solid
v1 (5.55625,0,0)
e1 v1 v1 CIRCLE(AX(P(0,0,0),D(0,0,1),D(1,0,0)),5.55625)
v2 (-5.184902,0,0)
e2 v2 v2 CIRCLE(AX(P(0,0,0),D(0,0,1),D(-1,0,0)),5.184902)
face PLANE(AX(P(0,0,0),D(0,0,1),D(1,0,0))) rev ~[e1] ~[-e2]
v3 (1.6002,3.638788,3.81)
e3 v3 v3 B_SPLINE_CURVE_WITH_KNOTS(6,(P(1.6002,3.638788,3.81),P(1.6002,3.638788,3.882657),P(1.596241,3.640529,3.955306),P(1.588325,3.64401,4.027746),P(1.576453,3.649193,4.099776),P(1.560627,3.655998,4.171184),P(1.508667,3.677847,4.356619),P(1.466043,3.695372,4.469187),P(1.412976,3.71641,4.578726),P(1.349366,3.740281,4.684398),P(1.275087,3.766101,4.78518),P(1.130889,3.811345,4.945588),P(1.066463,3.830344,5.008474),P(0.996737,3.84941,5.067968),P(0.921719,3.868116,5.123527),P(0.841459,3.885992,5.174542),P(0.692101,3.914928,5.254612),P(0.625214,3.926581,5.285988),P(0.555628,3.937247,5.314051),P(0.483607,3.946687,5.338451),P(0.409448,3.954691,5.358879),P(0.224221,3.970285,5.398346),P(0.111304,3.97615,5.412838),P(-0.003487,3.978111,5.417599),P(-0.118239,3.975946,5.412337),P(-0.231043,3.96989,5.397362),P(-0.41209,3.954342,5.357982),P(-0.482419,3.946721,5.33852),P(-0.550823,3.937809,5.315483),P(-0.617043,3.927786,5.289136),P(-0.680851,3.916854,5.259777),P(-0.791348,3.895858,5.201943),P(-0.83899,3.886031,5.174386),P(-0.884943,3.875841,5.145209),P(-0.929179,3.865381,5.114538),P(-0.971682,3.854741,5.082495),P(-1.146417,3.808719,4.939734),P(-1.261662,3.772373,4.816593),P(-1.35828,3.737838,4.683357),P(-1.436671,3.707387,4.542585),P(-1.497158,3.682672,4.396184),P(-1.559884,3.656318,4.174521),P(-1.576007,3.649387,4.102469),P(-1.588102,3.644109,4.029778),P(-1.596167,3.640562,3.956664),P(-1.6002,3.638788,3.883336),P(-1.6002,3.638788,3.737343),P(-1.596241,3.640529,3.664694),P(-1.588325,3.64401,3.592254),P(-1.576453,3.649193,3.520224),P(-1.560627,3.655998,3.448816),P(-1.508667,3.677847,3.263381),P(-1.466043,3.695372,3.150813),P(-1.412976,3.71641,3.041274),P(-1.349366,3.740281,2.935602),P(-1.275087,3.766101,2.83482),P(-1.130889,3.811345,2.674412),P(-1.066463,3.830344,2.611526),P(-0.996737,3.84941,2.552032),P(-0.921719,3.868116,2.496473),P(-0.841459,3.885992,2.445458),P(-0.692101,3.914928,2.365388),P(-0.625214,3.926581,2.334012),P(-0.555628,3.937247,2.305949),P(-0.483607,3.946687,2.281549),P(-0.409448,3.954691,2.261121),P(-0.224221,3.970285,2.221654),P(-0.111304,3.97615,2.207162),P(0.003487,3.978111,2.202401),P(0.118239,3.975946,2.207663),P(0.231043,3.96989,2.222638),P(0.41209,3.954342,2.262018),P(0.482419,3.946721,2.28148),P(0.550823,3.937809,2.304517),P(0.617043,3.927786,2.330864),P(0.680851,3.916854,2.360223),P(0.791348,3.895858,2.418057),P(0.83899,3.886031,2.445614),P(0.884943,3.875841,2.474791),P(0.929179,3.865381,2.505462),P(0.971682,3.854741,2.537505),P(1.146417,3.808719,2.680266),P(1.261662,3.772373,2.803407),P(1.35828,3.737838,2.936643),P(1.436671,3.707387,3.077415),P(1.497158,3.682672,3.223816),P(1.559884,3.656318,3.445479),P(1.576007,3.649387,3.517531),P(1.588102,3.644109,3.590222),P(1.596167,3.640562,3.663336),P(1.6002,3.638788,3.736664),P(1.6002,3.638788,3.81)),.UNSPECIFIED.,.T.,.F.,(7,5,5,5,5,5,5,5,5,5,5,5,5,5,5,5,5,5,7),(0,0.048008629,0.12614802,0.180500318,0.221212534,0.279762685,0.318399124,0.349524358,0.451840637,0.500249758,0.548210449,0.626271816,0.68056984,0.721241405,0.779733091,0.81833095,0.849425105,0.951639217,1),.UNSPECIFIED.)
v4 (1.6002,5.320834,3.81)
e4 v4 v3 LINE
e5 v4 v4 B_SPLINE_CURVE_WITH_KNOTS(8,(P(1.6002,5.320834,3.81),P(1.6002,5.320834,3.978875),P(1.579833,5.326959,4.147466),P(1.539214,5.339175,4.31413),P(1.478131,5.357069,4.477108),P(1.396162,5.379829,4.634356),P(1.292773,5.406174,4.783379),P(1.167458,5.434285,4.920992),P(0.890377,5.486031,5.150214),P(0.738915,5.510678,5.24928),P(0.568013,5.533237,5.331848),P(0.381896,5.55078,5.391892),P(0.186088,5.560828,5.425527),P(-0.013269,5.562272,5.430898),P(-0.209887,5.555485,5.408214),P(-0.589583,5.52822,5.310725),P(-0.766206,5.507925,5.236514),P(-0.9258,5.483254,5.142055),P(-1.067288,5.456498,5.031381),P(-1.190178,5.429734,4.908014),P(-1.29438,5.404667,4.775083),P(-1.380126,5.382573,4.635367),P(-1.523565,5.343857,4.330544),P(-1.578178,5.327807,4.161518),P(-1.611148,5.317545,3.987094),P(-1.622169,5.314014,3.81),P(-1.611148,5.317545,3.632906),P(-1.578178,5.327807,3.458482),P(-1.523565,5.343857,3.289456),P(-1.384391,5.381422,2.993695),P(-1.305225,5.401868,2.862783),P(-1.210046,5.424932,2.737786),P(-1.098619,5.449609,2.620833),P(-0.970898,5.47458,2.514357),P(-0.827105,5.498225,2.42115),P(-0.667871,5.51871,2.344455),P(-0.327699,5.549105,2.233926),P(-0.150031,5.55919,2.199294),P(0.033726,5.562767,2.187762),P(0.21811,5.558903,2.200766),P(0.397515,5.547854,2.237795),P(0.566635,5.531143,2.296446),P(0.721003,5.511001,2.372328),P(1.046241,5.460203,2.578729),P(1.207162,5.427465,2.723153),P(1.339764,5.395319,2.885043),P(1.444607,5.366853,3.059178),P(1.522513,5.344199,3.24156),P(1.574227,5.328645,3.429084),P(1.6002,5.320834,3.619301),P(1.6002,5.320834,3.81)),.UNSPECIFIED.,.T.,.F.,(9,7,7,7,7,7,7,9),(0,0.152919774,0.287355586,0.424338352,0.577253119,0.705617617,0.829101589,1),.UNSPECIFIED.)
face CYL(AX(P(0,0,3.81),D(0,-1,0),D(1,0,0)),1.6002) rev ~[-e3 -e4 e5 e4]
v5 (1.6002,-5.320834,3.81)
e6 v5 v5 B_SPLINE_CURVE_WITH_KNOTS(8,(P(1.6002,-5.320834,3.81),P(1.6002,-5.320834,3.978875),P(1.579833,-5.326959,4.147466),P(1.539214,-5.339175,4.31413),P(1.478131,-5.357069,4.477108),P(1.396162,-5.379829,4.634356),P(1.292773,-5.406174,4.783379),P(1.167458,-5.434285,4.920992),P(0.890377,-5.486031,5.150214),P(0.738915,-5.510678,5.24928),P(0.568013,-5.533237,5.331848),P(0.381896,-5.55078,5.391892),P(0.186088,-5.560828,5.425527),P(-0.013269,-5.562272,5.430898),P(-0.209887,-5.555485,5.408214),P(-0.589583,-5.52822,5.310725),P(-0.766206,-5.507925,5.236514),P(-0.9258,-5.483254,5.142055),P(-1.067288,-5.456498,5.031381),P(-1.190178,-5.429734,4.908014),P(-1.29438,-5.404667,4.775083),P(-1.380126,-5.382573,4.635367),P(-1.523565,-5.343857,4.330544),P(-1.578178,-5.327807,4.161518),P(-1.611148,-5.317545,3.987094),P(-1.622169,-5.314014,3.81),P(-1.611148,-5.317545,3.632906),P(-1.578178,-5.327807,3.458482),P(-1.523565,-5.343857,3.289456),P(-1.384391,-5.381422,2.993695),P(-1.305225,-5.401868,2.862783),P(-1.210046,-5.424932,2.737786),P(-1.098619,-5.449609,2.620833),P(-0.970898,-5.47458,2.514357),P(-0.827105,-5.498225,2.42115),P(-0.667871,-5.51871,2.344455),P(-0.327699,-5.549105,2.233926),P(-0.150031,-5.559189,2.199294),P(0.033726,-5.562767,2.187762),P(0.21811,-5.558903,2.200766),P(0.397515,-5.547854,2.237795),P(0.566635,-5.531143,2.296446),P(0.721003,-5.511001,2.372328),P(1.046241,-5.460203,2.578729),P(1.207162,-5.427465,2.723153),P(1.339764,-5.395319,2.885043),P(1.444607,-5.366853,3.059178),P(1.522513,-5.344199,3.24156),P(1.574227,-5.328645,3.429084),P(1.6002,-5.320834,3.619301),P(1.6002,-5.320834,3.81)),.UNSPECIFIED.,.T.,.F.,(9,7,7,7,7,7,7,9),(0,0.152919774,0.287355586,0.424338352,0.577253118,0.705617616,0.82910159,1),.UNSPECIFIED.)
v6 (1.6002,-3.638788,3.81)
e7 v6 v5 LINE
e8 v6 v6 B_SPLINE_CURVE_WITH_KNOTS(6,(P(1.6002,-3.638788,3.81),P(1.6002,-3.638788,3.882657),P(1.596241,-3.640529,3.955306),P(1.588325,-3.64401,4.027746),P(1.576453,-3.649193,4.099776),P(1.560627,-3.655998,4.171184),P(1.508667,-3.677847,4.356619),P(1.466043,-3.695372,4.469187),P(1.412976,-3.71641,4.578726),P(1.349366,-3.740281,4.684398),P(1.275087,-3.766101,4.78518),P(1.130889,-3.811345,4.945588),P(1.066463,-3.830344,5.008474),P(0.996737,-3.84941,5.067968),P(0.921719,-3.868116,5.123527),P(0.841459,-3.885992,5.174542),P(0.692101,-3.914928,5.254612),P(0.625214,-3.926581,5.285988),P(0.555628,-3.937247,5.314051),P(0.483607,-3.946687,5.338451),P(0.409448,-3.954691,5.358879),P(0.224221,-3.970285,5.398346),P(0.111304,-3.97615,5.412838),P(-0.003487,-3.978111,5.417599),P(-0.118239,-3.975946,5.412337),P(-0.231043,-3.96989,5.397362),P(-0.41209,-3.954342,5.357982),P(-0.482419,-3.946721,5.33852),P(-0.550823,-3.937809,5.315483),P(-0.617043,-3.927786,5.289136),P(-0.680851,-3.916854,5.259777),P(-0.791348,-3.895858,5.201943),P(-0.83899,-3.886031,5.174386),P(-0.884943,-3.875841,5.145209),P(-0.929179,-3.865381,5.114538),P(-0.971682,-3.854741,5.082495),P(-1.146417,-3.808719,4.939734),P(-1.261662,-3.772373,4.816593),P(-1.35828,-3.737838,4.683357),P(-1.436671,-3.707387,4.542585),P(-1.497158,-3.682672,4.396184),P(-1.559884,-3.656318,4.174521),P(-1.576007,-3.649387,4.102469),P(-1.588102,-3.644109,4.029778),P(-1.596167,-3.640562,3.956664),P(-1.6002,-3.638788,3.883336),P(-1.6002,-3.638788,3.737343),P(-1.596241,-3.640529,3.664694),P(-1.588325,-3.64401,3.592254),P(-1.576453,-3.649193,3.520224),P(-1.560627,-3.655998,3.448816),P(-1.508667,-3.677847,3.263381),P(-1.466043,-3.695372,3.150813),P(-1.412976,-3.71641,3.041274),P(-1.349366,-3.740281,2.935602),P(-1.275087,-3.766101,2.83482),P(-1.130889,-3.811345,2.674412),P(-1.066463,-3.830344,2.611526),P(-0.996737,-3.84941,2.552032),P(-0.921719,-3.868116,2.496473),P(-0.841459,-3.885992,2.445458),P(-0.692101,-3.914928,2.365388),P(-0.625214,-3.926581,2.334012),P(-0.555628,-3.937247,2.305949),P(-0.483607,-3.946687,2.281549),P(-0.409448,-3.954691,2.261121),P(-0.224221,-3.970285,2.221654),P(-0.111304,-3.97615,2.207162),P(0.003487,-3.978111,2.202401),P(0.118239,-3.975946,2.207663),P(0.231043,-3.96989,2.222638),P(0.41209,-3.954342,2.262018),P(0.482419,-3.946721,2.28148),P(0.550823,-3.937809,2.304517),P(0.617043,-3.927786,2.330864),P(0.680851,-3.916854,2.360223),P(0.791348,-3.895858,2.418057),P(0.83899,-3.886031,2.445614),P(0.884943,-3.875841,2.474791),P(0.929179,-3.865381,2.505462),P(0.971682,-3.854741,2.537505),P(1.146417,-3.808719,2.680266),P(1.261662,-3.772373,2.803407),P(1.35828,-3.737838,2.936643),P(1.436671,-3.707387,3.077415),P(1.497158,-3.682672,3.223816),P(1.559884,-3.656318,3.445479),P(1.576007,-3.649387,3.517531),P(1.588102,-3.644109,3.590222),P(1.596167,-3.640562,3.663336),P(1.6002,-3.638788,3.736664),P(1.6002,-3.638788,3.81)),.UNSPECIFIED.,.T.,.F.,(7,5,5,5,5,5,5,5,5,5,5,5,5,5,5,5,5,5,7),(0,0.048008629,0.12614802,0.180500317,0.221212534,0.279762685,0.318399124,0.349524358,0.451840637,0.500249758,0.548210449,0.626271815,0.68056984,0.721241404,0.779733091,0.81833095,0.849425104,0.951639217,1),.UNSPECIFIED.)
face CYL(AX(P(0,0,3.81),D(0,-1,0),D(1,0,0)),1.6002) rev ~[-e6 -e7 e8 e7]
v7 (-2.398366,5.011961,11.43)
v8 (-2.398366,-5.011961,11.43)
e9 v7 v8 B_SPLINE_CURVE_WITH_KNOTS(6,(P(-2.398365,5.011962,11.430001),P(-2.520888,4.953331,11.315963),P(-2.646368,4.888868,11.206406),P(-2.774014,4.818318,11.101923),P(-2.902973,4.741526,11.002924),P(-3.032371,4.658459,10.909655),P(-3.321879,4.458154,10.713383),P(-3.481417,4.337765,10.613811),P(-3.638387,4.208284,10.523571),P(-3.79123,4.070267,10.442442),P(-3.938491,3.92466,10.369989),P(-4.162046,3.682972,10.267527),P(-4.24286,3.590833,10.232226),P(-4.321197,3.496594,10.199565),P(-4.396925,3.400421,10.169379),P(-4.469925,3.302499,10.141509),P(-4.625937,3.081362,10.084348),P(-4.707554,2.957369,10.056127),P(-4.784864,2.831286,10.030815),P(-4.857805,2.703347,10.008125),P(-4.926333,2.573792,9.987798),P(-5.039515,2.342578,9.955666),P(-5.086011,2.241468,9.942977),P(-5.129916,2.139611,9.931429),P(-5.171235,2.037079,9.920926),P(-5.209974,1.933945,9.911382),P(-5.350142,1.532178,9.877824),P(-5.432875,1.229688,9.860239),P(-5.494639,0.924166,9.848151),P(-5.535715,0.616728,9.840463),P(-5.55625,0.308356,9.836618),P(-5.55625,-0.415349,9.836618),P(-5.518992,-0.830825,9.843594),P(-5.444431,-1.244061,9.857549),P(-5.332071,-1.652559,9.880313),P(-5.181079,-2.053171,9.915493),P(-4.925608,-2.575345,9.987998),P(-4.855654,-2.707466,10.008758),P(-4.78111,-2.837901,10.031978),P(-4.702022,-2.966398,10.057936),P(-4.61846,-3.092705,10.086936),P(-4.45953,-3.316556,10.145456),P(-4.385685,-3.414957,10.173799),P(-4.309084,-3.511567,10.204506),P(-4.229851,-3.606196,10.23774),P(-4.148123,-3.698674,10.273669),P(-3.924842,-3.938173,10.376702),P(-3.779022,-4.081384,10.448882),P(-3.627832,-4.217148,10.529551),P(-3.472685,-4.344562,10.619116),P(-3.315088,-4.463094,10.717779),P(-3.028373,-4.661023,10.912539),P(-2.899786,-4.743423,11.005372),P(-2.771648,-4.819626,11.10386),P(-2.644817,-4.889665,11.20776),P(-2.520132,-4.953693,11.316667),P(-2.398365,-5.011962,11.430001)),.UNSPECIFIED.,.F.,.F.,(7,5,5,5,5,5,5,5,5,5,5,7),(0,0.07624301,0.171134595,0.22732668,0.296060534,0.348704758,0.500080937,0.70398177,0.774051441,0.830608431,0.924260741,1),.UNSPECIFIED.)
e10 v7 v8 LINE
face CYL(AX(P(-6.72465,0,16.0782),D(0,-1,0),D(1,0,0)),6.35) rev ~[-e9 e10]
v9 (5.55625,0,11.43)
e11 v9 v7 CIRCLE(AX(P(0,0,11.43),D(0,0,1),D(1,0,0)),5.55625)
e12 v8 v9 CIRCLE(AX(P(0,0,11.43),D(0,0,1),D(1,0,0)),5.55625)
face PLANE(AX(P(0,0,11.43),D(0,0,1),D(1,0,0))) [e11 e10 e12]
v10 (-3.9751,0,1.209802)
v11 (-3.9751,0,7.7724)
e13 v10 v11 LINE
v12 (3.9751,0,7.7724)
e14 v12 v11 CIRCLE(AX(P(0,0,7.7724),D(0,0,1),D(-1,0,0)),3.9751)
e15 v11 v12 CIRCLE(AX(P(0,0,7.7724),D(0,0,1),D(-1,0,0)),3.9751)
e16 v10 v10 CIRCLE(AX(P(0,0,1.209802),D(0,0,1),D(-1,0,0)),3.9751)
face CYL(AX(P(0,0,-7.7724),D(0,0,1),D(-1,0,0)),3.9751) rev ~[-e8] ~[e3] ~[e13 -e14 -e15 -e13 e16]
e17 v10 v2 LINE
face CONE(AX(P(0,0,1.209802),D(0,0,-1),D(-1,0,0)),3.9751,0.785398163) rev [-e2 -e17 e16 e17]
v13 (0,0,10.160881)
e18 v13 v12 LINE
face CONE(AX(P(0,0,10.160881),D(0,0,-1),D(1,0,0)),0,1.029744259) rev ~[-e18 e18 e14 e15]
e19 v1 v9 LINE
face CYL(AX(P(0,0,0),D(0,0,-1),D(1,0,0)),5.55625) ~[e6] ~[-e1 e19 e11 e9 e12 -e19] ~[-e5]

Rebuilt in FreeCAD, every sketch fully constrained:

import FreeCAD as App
import Part
import Sketcher
Q = App.Units.Quantity


def add_polygon(sketch, points):
    """Adds a closed chain of lines whose ends are joined by coincident constraints."""
    first, n = sketch.GeometryCount, len(points)
    for a, b in zip(points, points[1:] + points[:1]):
        sketch.addGeometry(Part.LineSegment(App.Vector(*a, 0), App.Vector(*b, 0)), False)
    for i in range(n):
        sketch.addConstraint(Sketcher.Constraint("Coincident", first + i, 2, first + (i + 1) % n, 1))

doc = App.newDocument("Part")
params = doc.addObject("Spreadsheet::Sheet", "Params")
for row, (alias, value) in enumerate([
    ("sketch1_diameter", "0.4375 in"),
    ("pad1_length", "0.45 in"),
    ("sketch2_diameter", "0.313 in"),
    ("hole_diameter", "0.313 in"),
    ("hole_depth", "0.306 in"),
    ("sketch3_diameter", "0.5 in"),
    ("pocket1_length", "1 in"),
    ("sketch4_diameter", "0.126 in"),
    ("pocket2_length", "1 in"),
    ("groove_angle", "360 deg"),
], start=1):
    params.set(f"A{row}", alias)
    params.set(f"B{row}", "=" + value)
    params.setAlias(f"B{row}", alias)

body = doc.addObject("PartDesign::Body", "Body")

sketch1 = body.newObject("Sketcher::SketchObject", "Sketch")
sketch1.AttachmentSupport = (doc.getObject("XY_Plane"), [""])
sketch1.MapMode = "FlatFace"
sketch1.addGeometry(Part.Circle(App.Vector(0, 0, 0), App.Vector(0, 0, 1), 6), False)
sketch1.addConstraint(Sketcher.Constraint("Coincident", 0, 3, -1, 1))
sketch1.addConstraint(Sketcher.Constraint("Diameter", 0, Q("0.4375 in")))
sketch1.setExpression("Constraints[1]", "Params.sketch1_diameter")
pad1 = body.newObject("PartDesign::Pad", "Pad")
pad1.Profile = sketch1
pad1.setExpression("Length", "Params.pad1_length")

sketch2 = body.newObject("Sketcher::SketchObject", "Sketch001")
sketch2.AttachmentSupport = (doc.getObject("XY_Plane"), [""])
sketch2.MapMode = "FlatFace"
sketch2.addGeometry(Part.Circle(App.Vector(0, 0, 0), App.Vector(0, 0, 1), 4), False)
sketch2.addConstraint(Sketcher.Constraint("Coincident", 0, 3, -1, 1))
sketch2.addConstraint(Sketcher.Constraint("Diameter", 0, Q("0.313 in")))
sketch2.setExpression("Constraints[1]", "Params.sketch2_diameter")
doc.recompute()
hole = body.newObject("PartDesign::Hole", "Hole")
hole.Profile = sketch2
hole.ThreadType = "None"
hole.setExpression("Diameter", "Params.hole_diameter")
hole.DepthType = "Dimension"
hole.setExpression("Depth", "Params.hole_depth")
hole.DrillPoint = "Angled"
hole.DrillPointAngle = 118
hole.Reversed = True

sketch3 = body.newObject("Sketcher::SketchObject", "Sketch002")
sketch3.AttachmentSupport = (doc.getObject("XZ_Plane"), [""])
sketch3.MapMode = "FlatFace"
sketch3.addGeometry(Part.Circle(App.Vector(-7, 16, 0), App.Vector(0, 0, 1), 6), False)
sketch3.addConstraint(Sketcher.Constraint("Diameter", 0, Q("0.5 in")))
sketch3.addConstraint(Sketcher.Constraint("DistanceY", -1, 1, 0, 3, Q("0.633 in")))
sketch3.addConstraint(Sketcher.Constraint("DistanceX", 0, 3, -1, 1, Q("6.72465 mm")))
sketch3.setExpression("Constraints[0]", "Params.sketch3_diameter")
pocket1 = body.newObject("PartDesign::Pocket", "Pocket")
pocket1.Profile = sketch3
pocket1.setExpression("Length", "Params.pocket1_length")
pocket1.Midplane = True

sketch4 = body.newObject("Sketcher::SketchObject", "Sketch003")
sketch4.AttachmentSupport = (doc.getObject("XZ_Plane"), [""])
sketch4.MapMode = "FlatFace"
sketch4.addGeometry(Part.Circle(App.Vector(0, 3.8, 0), App.Vector(0, 0, 1), 1.6), False)
sketch4.addConstraint(Sketcher.Constraint("PointOnObject", 0, 3, -2))
sketch4.addConstraint(Sketcher.Constraint("Diameter", 0, Q("0.126 in")))
sketch4.addConstraint(Sketcher.Constraint("DistanceY", -1, 1, 0, 3, Q("0.15 in")))
sketch4.setExpression("Constraints[1]", "Params.sketch4_diameter")
pocket2 = body.newObject("PartDesign::Pocket", "Pocket001")
pocket2.Profile = sketch4
pocket2.setExpression("Length", "Params.pocket2_length")
pocket2.Midplane = True

sketch5 = body.newObject("Sketcher::SketchObject", "Sketch004")
sketch5.AttachmentSupport = (doc.getObject("XZ_Plane"), [""])
sketch5.MapMode = "FlatFace"
add_polygon(sketch5, [(-4, 0), (-4, 1.2), (-5.2, 0)])
sketch5.addConstraint(Sketcher.Constraint("Vertical", 0))
sketch5.addConstraint(Sketcher.Constraint("Horizontal", 2))
sketch5.addConstraint(Sketcher.Constraint("PointOnObject", 1, 2, -1))
sketch5.addConstraint(Sketcher.Constraint("Equal", 2, 0))
sketch5.addConstraint(Sketcher.Constraint("DistanceX", 0, 2, -1, 1, Q("0.1565 in")))
sketch5.addConstraint(Sketcher.Constraint("Distance", 1, Q("1.710918 mm")))
groove = body.newObject("PartDesign::Groove", "Groove")
groove.Profile = sketch5
groove.ReferenceAxis = (sketch5, ["V_Axis"])
groove.setExpression("Angle", "Params.groove_angle")

doc.recompute()
